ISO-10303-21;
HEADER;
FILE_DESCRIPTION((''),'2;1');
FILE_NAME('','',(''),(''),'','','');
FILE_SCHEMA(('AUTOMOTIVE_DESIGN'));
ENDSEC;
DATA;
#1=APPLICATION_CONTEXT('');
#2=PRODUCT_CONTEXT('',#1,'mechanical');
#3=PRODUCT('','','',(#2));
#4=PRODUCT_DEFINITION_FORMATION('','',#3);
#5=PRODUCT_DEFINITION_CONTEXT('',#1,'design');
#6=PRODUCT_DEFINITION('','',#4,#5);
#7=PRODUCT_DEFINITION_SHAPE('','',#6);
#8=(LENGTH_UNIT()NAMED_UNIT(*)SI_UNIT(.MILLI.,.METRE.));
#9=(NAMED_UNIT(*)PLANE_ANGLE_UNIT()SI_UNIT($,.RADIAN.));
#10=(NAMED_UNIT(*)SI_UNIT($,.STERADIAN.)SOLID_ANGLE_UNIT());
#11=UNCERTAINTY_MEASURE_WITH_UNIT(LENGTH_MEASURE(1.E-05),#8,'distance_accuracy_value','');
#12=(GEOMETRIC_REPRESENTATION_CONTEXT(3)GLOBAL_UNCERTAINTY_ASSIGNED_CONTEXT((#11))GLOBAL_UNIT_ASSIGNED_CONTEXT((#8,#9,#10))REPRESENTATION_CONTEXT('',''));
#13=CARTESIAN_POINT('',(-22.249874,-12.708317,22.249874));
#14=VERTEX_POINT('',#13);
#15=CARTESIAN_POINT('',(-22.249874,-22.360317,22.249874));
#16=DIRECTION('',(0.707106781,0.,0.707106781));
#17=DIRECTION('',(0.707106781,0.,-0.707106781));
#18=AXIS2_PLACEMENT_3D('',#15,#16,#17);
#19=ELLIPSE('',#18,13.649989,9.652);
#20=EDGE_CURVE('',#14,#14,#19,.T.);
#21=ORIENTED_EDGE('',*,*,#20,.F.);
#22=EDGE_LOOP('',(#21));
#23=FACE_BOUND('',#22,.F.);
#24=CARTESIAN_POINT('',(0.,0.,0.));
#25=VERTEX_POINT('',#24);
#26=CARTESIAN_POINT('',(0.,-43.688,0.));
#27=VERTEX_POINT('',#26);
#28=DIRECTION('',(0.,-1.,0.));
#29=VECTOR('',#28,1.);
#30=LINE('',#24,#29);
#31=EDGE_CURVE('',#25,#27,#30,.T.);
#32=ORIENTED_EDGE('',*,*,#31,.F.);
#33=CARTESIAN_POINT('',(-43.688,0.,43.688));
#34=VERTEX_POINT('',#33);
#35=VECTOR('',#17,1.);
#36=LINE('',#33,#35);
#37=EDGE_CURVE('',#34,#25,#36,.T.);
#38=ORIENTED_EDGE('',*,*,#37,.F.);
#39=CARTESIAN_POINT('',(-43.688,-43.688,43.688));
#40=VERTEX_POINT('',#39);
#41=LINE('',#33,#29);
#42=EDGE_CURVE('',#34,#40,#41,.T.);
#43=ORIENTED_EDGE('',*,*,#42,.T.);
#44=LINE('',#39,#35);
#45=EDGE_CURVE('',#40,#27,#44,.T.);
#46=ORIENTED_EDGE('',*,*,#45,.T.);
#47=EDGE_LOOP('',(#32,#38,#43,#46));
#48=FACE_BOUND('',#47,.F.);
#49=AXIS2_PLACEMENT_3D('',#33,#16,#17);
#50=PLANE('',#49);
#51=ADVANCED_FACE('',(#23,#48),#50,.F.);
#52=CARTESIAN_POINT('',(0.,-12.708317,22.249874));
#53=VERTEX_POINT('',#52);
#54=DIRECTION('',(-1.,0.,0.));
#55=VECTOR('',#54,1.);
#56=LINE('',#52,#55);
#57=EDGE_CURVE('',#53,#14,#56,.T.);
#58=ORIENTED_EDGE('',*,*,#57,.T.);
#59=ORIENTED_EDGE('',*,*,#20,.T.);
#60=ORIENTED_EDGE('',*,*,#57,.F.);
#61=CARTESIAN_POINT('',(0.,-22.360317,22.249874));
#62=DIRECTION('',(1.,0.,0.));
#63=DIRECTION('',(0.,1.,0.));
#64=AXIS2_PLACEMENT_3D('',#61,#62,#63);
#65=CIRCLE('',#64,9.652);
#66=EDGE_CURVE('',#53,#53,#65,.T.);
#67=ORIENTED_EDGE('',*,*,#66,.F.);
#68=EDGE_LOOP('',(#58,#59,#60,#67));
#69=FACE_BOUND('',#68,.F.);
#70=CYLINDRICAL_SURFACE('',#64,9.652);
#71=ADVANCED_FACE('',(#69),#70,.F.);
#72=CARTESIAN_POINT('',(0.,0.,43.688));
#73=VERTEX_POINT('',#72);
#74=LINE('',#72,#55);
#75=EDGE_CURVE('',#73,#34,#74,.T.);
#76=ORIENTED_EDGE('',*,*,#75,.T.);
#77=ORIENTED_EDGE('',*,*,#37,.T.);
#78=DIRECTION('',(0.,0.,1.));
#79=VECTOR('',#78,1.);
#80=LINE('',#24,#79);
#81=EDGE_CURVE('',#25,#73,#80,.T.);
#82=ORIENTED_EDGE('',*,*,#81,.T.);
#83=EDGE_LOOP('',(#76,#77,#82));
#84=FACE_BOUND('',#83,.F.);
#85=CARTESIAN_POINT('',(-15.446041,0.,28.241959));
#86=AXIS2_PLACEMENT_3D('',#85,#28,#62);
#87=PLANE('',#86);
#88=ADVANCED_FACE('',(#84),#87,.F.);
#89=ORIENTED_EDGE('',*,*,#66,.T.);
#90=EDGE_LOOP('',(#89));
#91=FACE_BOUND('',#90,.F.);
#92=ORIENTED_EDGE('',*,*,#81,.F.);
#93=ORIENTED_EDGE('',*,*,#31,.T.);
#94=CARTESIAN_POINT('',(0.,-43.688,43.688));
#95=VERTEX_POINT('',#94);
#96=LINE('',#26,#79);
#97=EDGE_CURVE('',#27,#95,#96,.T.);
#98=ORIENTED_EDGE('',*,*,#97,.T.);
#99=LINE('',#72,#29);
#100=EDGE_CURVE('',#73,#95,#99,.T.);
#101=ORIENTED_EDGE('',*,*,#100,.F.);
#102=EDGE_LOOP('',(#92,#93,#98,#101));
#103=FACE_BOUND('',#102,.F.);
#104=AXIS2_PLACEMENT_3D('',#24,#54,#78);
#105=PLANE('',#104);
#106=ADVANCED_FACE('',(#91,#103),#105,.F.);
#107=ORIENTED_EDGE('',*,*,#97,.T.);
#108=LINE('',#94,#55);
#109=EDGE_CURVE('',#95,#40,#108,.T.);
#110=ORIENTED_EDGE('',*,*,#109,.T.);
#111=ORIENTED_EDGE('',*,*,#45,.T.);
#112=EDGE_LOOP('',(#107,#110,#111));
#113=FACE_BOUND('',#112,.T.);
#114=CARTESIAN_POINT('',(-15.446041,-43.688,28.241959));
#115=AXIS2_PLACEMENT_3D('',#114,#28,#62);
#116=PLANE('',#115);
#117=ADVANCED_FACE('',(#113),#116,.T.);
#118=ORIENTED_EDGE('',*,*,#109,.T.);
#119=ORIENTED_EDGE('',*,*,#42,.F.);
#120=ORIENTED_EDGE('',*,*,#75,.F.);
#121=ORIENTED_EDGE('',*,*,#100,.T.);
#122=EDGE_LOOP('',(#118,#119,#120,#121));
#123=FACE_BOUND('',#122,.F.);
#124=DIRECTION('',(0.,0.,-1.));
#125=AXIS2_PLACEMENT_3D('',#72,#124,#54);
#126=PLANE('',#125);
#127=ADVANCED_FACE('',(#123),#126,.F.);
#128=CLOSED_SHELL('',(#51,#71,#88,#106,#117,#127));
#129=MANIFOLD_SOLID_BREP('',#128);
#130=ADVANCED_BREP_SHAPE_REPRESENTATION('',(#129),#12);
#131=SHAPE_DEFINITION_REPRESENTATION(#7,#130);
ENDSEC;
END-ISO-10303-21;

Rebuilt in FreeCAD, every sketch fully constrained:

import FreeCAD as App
import Part
import Sketcher
from FreeCAD import Vector
Q = App.Units.Quantity


def add_polygon(sketch, points):
    """Adds a closed chain of lines whose ends are joined by coincident constraints."""
    first, n = sketch.GeometryCount, len(points)
    for a, b in zip(points, points[1:] + points[:1]):
        sketch.addGeometry(Part.LineSegment(App.Vector(*a, 0), App.Vector(*b, 0)), False)
    for i in range(n):
        sketch.addConstraint(Sketcher.Constraint("Coincident", first + i, 2, first + (i + 1) % n, 1))

doc = App.newDocument("Part")
body = doc.addObject("PartDesign::Body", "Body")

# Sketch on XZ plane
sketch1 = body.newObject("Sketcher::SketchObject", "Sketch")
sketch1.AttachmentSupport = (doc.getObject("XZ_Plane"), [""])
sketch1.MapMode = "FlatFace"
add_polygon(sketch1, [(0, 0), (0, 44), (-44, 44)])  # lines 0-2
sketch1.addConstraint(Sketcher.Constraint("Vertical", 0))
sketch1.addConstraint(Sketcher.Constraint("Horizontal", 1))
sketch1.addConstraint(Sketcher.Constraint("Coincident", 2, 2, -1, 1))
sketch1.addConstraint(Sketcher.Constraint("Equal", 1, 0))
sketch1.addConstraint(Sketcher.Constraint("DistanceX", 1, 2, 1, 1, Q("1.72 in")))
pad1 = body.newObject("PartDesign::Pad", "Pad")
pad1.Profile = sketch1
pad1.Length = Q("1.72 in")

# Sketch on YZ plane
sketch2 = body.newObject("Sketcher::SketchObject", "Sketch001")
sketch2.AttachmentSupport = (doc.getObject("YZ_Plane"), [""])
sketch2.MapMode = "FlatFace"
sketch2.addGeometry(Part.Circle(Vector(-22, 22, 0), Vector(0, 0, 1), 10), False)
sketch2.addConstraint(Sketcher.Constraint("Diameter", 0, Q("0.76 in")))
sketch2.addConstraint(Sketcher.Constraint("DistanceX", 0, 3, -1, 1, 22.360317))
sketch2.addConstraint(Sketcher.Constraint("DistanceY", -1, 1, 0, 3, 22.249874))
pocket1 = body.newObject("PartDesign::Pocket", "Pocket")
pocket1.Profile = sketch2
pocket1.Type = "ThroughAll"

doc.recompute()
